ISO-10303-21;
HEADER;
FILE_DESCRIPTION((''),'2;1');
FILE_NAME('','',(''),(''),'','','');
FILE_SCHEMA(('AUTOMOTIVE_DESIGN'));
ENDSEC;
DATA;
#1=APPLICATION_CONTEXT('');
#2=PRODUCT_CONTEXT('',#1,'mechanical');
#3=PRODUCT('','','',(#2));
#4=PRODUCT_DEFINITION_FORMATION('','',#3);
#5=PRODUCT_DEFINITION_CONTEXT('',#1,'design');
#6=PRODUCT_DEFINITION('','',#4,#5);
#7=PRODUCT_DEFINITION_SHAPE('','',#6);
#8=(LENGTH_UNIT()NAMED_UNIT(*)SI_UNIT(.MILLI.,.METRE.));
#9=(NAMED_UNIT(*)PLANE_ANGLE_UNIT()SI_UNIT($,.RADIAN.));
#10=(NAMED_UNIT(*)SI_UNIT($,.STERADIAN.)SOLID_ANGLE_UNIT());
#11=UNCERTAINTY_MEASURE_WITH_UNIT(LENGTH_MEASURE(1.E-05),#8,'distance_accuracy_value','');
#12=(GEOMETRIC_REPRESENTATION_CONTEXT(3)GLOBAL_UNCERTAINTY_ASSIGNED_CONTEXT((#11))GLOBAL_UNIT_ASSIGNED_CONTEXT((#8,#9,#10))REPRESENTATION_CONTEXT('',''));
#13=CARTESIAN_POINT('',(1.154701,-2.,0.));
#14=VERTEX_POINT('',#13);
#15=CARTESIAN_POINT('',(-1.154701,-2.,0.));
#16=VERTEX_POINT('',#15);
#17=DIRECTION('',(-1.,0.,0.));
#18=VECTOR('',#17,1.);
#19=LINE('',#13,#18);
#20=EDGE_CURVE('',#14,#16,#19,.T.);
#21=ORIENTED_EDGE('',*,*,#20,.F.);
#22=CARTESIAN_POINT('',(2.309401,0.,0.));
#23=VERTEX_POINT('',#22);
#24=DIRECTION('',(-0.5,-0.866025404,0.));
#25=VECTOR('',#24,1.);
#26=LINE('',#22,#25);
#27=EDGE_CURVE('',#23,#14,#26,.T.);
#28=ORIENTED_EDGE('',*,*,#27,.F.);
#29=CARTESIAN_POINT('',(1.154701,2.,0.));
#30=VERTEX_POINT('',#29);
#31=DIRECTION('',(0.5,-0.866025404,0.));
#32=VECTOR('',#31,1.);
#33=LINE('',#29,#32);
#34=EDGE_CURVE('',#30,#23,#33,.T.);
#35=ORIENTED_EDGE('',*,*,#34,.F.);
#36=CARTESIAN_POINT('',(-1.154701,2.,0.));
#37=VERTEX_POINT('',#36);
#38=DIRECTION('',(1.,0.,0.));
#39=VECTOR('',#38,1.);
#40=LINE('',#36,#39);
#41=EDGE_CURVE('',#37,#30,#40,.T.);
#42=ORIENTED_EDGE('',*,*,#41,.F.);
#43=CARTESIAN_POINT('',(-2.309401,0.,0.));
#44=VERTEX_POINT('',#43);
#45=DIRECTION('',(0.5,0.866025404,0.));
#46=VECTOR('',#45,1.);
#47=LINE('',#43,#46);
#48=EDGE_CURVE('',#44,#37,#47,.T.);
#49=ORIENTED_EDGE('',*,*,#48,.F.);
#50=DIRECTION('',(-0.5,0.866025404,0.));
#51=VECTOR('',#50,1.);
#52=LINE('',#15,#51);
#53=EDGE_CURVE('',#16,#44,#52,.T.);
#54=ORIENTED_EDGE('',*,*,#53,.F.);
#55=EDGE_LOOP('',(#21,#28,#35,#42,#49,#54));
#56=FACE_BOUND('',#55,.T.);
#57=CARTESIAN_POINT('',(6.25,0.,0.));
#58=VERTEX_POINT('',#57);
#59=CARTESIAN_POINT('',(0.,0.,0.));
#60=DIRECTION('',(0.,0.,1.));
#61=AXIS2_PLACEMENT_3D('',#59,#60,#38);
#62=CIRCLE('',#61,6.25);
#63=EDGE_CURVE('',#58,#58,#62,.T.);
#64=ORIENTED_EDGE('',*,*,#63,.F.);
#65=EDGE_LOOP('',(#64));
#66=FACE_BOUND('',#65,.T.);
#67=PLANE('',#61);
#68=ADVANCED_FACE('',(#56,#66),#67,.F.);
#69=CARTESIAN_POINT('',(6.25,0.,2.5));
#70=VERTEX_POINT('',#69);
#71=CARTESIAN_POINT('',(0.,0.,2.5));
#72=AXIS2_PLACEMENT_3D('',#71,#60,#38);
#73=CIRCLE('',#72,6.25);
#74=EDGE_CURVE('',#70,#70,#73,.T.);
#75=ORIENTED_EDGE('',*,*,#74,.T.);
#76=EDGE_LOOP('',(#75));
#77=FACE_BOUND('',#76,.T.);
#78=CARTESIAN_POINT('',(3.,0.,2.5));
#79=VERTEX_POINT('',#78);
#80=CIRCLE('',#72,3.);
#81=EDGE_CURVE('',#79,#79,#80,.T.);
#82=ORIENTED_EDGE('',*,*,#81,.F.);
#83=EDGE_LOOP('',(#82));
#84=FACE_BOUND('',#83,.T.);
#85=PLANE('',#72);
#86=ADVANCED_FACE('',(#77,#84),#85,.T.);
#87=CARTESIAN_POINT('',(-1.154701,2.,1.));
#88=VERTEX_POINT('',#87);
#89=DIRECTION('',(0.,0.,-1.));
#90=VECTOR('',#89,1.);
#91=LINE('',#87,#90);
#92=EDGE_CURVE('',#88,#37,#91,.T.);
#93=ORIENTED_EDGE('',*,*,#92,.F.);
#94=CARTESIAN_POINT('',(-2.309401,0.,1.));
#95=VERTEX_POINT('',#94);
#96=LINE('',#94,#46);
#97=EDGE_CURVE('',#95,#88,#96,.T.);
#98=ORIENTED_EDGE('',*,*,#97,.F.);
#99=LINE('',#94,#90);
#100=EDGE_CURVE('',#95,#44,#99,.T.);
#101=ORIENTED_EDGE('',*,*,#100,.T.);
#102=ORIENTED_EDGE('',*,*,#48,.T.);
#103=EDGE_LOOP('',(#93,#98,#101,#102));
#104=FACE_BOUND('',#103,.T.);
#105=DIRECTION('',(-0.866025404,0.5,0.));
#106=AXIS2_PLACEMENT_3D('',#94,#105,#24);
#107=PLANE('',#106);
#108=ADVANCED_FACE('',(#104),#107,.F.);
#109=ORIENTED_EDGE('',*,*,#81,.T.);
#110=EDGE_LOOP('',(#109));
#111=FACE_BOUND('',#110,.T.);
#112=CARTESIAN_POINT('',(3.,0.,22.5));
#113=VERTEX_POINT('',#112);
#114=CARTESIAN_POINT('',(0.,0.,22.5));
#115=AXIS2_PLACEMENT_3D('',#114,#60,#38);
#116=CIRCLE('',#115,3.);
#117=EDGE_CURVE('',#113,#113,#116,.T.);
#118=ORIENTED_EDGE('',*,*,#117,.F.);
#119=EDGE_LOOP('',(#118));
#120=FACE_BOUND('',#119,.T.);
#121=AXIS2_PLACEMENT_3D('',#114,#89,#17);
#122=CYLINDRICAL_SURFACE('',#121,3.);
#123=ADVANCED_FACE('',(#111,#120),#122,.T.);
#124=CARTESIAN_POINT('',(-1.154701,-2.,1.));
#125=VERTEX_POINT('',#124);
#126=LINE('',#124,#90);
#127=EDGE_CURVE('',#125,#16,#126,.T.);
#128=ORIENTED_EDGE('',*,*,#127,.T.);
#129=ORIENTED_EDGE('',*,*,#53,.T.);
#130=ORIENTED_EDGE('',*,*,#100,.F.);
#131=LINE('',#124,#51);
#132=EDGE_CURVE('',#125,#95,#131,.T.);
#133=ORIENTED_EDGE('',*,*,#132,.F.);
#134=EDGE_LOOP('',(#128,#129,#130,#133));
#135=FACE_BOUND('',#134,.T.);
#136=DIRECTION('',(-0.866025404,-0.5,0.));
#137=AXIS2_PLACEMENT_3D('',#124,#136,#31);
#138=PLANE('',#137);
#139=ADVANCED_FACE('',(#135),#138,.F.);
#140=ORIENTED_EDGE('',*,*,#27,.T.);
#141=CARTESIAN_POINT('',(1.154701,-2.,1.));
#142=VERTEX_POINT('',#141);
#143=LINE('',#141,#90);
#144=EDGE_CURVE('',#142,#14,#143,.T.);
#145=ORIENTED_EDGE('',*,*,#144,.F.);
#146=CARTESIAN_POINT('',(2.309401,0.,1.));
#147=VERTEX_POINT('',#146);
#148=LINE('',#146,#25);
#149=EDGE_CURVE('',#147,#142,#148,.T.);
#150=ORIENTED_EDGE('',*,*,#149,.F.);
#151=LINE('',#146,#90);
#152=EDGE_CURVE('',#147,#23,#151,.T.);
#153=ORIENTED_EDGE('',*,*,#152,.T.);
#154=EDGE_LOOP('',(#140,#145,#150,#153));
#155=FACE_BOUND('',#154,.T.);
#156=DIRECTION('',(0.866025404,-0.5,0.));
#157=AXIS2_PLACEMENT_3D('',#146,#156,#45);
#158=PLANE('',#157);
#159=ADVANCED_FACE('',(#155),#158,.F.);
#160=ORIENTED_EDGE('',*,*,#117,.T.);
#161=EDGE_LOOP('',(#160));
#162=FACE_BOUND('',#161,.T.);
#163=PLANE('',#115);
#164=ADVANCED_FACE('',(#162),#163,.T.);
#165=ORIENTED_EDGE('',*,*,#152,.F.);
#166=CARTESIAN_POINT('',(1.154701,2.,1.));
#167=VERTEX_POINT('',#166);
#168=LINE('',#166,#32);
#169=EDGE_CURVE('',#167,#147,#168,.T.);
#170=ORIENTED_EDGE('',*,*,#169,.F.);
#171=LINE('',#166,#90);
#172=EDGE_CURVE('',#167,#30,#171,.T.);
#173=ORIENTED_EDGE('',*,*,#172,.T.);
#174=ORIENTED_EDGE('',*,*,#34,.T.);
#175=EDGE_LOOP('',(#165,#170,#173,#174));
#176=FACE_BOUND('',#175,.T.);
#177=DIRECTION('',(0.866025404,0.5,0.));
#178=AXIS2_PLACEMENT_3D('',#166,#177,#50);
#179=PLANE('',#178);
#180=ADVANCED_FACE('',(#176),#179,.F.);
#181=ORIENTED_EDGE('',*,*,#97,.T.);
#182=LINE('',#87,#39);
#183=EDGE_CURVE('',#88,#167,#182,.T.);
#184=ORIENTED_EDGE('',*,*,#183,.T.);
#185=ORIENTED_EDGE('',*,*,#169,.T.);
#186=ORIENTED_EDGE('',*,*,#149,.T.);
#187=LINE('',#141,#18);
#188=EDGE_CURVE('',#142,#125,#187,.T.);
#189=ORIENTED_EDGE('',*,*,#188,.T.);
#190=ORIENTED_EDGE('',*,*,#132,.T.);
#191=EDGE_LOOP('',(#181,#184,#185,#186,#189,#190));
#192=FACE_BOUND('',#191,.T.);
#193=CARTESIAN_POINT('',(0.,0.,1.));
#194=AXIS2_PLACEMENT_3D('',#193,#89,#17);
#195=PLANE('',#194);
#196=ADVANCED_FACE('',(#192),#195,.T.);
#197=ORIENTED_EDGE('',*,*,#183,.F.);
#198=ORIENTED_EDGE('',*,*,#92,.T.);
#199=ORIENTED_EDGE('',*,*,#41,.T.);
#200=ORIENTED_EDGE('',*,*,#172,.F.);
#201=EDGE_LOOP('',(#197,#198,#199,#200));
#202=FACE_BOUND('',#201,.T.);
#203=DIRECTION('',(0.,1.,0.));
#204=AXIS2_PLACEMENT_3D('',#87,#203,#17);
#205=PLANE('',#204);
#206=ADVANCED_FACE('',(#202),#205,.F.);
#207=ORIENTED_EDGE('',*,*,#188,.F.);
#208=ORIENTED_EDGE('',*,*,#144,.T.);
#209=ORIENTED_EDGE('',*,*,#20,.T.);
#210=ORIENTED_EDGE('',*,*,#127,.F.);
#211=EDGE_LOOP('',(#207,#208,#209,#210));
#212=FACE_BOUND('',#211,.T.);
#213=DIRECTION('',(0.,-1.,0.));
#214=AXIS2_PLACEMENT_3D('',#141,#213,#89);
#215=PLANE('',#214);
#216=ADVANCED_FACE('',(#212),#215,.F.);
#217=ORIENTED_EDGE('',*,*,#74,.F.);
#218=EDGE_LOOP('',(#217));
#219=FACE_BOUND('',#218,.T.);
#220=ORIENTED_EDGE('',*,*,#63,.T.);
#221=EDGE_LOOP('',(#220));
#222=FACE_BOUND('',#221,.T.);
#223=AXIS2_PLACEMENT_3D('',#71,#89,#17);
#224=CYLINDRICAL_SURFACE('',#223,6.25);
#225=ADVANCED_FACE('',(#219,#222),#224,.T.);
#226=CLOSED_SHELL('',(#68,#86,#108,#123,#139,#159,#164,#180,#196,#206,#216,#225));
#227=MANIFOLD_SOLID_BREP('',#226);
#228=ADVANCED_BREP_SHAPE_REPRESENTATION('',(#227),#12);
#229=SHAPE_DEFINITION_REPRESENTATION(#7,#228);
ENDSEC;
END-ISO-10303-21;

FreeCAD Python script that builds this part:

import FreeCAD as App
import Part
import Sketcher
from FreeCAD import Vector
Q = App.Units.Quantity


def add_polygon(sketch, points):
    """Adds a closed chain of lines whose ends are joined by coincident constraints."""
    first, n = sketch.GeometryCount, len(points)
    for a, b in zip(points, points[1:] + points[:1]):
        sketch.addGeometry(Part.LineSegment(App.Vector(*a, 0), App.Vector(*b, 0)), False)
    for i in range(n):
        sketch.addConstraint(Sketcher.Constraint("Coincident", first + i, 2, first + (i + 1) % n, 1))

doc = App.newDocument("Part")
params = doc.addObject("Spreadsheet::Sheet", "Params")
for row, (alias, value) in enumerate([
    ("sketch1_diameter", "12.5 mm"),
    ("pad1_length", "2.5 mm"),
    ("sketch2_diameter", "6 mm"),
    ("pad2_length", "20 mm"),
    ("pocket1_length", "1 mm"),
], start=1):
    params.set(f"A{row}", alias)
    params.set(f"B{row}", "=" + value)
    params.setAlias(f"B{row}", alias)

body = doc.addObject("PartDesign::Body", "Body")

sketch1 = body.newObject("Sketcher::SketchObject", "Sketch")
sketch1.AttachmentSupport = (doc.getObject("XY_Plane"), [""])
sketch1.MapMode = "FlatFace"
sketch1.addGeometry(Part.Circle(Vector(0, 0, 0), Vector(0, 0, 1), 6), False)
sketch1.addConstraint([
    Sketcher.Constraint("Coincident", 0, 3, -1, 1),
    Sketcher.Constraint("Diameter", 0, Q("12.5 mm")),
])
sketch1.setExpression("Constraints[1]", "Params.sketch1_diameter")
pad1 = body.newObject("PartDesign::Pad", "Pad")
pad1.Profile = sketch1
pad1.setExpression("Length", "Params.pad1_length")

sketch2 = body.newObject("Sketcher::SketchObject", "Sketch001")
sketch2.AttachmentSupport = (doc.getObject("XY_Plane"), [""])
sketch2.MapMode = "FlatFace"
sketch2.AttachmentOffset = App.Placement(Vector(0, 0, 2.5), App.Rotation())
sketch2.addGeometry(Part.Circle(Vector(0, 0, 0), Vector(0, 0, 1), 3), False)
sketch2.addConstraint([
    Sketcher.Constraint("Coincident", 0, 3, -1, 1),
    Sketcher.Constraint("Diameter", 0, Q("6 mm")),
])
sketch2.setExpression("Constraints[1]", "Params.sketch2_diameter")
pad2 = body.newObject("PartDesign::Pad", "Pad001")
pad2.Profile = sketch2
pad2.setExpression("Length", "Params.pad2_length")

sketch3 = body.newObject("Sketcher::SketchObject", "Sketch002")
sketch3.AttachmentSupport = (doc.getObject("XY_Plane"), [""])
sketch3.MapMode = "FlatFace"
add_polygon(sketch3, [(-2.3, 0), (-1.2, 2), (1.2, 2), (2.3, 0), (1.2, -2), (-1.2, -2)])
sketch3.addConstraint([
    Sketcher.Constraint("Horizontal", 1),
    Sketcher.Constraint("Horizontal", 4),
    Sketcher.Constraint("Symmetric", 0, 2, 3, 2, -1, 1),
    Sketcher.Constraint("Symmetric", 2, 2, 5, 2, -1, 1),
    Sketcher.Constraint("PointOnObject", 2, 2, -1),
    Sketcher.Constraint("Parallel", 2, 5),
    Sketcher.Constraint("Vertical", 1, 2, 3, 2),
    Sketcher.Constraint("Angle", 0, Q("60 deg")),
    Sketcher.Constraint("DistanceY", -1, 1, 0, 2, Q("2 mm")),
    Sketcher.Constraint("DistanceX", 1, 1, 1, 2, Q("2.309401 mm")),
])
pocket1 = body.newObject("PartDesign::Pocket", "Pocket")
pocket1.Profile = sketch3
pocket1.setExpression("Length", "Params.pocket1_length")
pocket1.Reversed = True

doc.recompute()
